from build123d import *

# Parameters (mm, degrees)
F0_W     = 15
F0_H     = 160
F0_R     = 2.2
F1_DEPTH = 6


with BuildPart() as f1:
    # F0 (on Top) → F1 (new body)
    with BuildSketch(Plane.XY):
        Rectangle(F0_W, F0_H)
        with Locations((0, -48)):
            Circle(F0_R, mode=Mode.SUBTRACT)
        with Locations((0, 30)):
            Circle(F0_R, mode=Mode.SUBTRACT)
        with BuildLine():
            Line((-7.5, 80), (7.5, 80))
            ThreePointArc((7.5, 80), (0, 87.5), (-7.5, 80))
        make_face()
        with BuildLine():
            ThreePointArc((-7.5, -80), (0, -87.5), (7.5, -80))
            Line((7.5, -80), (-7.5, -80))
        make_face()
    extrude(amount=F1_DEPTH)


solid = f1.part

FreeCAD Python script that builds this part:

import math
import FreeCAD as App
import Part
import Sketcher

V = App.Vector

doc = App.newDocument("Part")
params = doc.addObject("Spreadsheet::Sheet", "Params")
for row, (alias, value) in enumerate([
    ("sketch1_diameter", "4.4 mm"),
    ("sketch1_radius", "7.5 mm"),
    ("sketch1_height", "160 mm"),
    ("pad1_length", "6 mm"),
], start=1):
    params.set(f"A{row}", alias)
    params.set(f"B{row}", "=" + value)
    params.setAlias(f"B{row}", alias)

body = doc.addObject("PartDesign::Body", "Body")

# Sketch on XY plane
sketch1 = body.newObject("Sketcher::SketchObject", "Sketch")
sketch1.AttachmentSupport = (doc.getObject("XY_Plane"), [""])
sketch1.MapMode = "FlatFace"
sketch1.addGeometry(Part.LineSegment(V(-7.5, 80, 0), V(-7.5, -80, 0)), False)
sketch1.addGeometry(Part.ArcOfCircle(Part.Circle(V(0, -80, 0), V(0, 0, 1), 7.5), math.radians(180), math.radians(360)), False)
sketch1.addGeometry(Part.LineSegment(V(7.5, -80, 0), V(7.5, 80, 0)), False)
sketch1.addGeometry(Part.ArcOfCircle(Part.Circle(V(0, 80, 0), V(0, 0, 1), 7.5), math.radians(0), math.radians(180)), False)
sketch1.addGeometry(Part.Circle(V(0, -48, 0), V(0, 0, 1), 2.2), False)
sketch1.addGeometry(Part.Circle(V(0, 30, 0), V(0, 0, 1), 2.2), False)
sketch1.addConstraint(Sketcher.Constraint("Tangent", 0, 2, 1, 1))
sketch1.addConstraint(Sketcher.Constraint("Tangent", 1, 2, 2, 1))
sketch1.addConstraint(Sketcher.Constraint("Tangent", 2, 2, 3, 1))
sketch1.addConstraint(Sketcher.Constraint("Tangent", 3, 2, 0, 1))
sketch1.addConstraint(Sketcher.Constraint("Vertical", 0))
sketch1.addConstraint(Sketcher.Constraint("Vertical", 2))
sketch1.addConstraint(Sketcher.Constraint("Equal", 4, 5))
sketch1.addConstraint(Sketcher.Constraint("Symmetric", 1, 3, 3, 3, -1, 1))
sketch1.addConstraint(Sketcher.Constraint("PointOnObject", 4, 3, -2))
sketch1.addConstraint(Sketcher.Constraint("PointOnObject", 5, 3, -2))
sketch1.addConstraint(Sketcher.Constraint("Diameter", 4, 4.4))
sketch1.addConstraint(Sketcher.Constraint("Radius", 1, 7.5))
sketch1.addConstraint(Sketcher.Constraint("DistanceY", 0, 2, 0, 1, 160.0))
sketch1.addConstraint(Sketcher.Constraint("DistanceY", 4, 3, -1, 1, 48.0))
sketch1.addConstraint(Sketcher.Constraint("DistanceY", -1, 1, 5, 3, 30.0))
sketch1.setExpression("Constraints[10]", "Params.sketch1_diameter")
sketch1.setExpression("Constraints[11]", "Params.sketch1_radius")
sketch1.setExpression("Constraints[12]", "Params.sketch1_height")
pad1 = body.newObject("PartDesign::Pad", "Pad")
pad1.Profile = sketch1
pad1.setExpression("Length", "Params.pad1_length")

doc.recompute()
